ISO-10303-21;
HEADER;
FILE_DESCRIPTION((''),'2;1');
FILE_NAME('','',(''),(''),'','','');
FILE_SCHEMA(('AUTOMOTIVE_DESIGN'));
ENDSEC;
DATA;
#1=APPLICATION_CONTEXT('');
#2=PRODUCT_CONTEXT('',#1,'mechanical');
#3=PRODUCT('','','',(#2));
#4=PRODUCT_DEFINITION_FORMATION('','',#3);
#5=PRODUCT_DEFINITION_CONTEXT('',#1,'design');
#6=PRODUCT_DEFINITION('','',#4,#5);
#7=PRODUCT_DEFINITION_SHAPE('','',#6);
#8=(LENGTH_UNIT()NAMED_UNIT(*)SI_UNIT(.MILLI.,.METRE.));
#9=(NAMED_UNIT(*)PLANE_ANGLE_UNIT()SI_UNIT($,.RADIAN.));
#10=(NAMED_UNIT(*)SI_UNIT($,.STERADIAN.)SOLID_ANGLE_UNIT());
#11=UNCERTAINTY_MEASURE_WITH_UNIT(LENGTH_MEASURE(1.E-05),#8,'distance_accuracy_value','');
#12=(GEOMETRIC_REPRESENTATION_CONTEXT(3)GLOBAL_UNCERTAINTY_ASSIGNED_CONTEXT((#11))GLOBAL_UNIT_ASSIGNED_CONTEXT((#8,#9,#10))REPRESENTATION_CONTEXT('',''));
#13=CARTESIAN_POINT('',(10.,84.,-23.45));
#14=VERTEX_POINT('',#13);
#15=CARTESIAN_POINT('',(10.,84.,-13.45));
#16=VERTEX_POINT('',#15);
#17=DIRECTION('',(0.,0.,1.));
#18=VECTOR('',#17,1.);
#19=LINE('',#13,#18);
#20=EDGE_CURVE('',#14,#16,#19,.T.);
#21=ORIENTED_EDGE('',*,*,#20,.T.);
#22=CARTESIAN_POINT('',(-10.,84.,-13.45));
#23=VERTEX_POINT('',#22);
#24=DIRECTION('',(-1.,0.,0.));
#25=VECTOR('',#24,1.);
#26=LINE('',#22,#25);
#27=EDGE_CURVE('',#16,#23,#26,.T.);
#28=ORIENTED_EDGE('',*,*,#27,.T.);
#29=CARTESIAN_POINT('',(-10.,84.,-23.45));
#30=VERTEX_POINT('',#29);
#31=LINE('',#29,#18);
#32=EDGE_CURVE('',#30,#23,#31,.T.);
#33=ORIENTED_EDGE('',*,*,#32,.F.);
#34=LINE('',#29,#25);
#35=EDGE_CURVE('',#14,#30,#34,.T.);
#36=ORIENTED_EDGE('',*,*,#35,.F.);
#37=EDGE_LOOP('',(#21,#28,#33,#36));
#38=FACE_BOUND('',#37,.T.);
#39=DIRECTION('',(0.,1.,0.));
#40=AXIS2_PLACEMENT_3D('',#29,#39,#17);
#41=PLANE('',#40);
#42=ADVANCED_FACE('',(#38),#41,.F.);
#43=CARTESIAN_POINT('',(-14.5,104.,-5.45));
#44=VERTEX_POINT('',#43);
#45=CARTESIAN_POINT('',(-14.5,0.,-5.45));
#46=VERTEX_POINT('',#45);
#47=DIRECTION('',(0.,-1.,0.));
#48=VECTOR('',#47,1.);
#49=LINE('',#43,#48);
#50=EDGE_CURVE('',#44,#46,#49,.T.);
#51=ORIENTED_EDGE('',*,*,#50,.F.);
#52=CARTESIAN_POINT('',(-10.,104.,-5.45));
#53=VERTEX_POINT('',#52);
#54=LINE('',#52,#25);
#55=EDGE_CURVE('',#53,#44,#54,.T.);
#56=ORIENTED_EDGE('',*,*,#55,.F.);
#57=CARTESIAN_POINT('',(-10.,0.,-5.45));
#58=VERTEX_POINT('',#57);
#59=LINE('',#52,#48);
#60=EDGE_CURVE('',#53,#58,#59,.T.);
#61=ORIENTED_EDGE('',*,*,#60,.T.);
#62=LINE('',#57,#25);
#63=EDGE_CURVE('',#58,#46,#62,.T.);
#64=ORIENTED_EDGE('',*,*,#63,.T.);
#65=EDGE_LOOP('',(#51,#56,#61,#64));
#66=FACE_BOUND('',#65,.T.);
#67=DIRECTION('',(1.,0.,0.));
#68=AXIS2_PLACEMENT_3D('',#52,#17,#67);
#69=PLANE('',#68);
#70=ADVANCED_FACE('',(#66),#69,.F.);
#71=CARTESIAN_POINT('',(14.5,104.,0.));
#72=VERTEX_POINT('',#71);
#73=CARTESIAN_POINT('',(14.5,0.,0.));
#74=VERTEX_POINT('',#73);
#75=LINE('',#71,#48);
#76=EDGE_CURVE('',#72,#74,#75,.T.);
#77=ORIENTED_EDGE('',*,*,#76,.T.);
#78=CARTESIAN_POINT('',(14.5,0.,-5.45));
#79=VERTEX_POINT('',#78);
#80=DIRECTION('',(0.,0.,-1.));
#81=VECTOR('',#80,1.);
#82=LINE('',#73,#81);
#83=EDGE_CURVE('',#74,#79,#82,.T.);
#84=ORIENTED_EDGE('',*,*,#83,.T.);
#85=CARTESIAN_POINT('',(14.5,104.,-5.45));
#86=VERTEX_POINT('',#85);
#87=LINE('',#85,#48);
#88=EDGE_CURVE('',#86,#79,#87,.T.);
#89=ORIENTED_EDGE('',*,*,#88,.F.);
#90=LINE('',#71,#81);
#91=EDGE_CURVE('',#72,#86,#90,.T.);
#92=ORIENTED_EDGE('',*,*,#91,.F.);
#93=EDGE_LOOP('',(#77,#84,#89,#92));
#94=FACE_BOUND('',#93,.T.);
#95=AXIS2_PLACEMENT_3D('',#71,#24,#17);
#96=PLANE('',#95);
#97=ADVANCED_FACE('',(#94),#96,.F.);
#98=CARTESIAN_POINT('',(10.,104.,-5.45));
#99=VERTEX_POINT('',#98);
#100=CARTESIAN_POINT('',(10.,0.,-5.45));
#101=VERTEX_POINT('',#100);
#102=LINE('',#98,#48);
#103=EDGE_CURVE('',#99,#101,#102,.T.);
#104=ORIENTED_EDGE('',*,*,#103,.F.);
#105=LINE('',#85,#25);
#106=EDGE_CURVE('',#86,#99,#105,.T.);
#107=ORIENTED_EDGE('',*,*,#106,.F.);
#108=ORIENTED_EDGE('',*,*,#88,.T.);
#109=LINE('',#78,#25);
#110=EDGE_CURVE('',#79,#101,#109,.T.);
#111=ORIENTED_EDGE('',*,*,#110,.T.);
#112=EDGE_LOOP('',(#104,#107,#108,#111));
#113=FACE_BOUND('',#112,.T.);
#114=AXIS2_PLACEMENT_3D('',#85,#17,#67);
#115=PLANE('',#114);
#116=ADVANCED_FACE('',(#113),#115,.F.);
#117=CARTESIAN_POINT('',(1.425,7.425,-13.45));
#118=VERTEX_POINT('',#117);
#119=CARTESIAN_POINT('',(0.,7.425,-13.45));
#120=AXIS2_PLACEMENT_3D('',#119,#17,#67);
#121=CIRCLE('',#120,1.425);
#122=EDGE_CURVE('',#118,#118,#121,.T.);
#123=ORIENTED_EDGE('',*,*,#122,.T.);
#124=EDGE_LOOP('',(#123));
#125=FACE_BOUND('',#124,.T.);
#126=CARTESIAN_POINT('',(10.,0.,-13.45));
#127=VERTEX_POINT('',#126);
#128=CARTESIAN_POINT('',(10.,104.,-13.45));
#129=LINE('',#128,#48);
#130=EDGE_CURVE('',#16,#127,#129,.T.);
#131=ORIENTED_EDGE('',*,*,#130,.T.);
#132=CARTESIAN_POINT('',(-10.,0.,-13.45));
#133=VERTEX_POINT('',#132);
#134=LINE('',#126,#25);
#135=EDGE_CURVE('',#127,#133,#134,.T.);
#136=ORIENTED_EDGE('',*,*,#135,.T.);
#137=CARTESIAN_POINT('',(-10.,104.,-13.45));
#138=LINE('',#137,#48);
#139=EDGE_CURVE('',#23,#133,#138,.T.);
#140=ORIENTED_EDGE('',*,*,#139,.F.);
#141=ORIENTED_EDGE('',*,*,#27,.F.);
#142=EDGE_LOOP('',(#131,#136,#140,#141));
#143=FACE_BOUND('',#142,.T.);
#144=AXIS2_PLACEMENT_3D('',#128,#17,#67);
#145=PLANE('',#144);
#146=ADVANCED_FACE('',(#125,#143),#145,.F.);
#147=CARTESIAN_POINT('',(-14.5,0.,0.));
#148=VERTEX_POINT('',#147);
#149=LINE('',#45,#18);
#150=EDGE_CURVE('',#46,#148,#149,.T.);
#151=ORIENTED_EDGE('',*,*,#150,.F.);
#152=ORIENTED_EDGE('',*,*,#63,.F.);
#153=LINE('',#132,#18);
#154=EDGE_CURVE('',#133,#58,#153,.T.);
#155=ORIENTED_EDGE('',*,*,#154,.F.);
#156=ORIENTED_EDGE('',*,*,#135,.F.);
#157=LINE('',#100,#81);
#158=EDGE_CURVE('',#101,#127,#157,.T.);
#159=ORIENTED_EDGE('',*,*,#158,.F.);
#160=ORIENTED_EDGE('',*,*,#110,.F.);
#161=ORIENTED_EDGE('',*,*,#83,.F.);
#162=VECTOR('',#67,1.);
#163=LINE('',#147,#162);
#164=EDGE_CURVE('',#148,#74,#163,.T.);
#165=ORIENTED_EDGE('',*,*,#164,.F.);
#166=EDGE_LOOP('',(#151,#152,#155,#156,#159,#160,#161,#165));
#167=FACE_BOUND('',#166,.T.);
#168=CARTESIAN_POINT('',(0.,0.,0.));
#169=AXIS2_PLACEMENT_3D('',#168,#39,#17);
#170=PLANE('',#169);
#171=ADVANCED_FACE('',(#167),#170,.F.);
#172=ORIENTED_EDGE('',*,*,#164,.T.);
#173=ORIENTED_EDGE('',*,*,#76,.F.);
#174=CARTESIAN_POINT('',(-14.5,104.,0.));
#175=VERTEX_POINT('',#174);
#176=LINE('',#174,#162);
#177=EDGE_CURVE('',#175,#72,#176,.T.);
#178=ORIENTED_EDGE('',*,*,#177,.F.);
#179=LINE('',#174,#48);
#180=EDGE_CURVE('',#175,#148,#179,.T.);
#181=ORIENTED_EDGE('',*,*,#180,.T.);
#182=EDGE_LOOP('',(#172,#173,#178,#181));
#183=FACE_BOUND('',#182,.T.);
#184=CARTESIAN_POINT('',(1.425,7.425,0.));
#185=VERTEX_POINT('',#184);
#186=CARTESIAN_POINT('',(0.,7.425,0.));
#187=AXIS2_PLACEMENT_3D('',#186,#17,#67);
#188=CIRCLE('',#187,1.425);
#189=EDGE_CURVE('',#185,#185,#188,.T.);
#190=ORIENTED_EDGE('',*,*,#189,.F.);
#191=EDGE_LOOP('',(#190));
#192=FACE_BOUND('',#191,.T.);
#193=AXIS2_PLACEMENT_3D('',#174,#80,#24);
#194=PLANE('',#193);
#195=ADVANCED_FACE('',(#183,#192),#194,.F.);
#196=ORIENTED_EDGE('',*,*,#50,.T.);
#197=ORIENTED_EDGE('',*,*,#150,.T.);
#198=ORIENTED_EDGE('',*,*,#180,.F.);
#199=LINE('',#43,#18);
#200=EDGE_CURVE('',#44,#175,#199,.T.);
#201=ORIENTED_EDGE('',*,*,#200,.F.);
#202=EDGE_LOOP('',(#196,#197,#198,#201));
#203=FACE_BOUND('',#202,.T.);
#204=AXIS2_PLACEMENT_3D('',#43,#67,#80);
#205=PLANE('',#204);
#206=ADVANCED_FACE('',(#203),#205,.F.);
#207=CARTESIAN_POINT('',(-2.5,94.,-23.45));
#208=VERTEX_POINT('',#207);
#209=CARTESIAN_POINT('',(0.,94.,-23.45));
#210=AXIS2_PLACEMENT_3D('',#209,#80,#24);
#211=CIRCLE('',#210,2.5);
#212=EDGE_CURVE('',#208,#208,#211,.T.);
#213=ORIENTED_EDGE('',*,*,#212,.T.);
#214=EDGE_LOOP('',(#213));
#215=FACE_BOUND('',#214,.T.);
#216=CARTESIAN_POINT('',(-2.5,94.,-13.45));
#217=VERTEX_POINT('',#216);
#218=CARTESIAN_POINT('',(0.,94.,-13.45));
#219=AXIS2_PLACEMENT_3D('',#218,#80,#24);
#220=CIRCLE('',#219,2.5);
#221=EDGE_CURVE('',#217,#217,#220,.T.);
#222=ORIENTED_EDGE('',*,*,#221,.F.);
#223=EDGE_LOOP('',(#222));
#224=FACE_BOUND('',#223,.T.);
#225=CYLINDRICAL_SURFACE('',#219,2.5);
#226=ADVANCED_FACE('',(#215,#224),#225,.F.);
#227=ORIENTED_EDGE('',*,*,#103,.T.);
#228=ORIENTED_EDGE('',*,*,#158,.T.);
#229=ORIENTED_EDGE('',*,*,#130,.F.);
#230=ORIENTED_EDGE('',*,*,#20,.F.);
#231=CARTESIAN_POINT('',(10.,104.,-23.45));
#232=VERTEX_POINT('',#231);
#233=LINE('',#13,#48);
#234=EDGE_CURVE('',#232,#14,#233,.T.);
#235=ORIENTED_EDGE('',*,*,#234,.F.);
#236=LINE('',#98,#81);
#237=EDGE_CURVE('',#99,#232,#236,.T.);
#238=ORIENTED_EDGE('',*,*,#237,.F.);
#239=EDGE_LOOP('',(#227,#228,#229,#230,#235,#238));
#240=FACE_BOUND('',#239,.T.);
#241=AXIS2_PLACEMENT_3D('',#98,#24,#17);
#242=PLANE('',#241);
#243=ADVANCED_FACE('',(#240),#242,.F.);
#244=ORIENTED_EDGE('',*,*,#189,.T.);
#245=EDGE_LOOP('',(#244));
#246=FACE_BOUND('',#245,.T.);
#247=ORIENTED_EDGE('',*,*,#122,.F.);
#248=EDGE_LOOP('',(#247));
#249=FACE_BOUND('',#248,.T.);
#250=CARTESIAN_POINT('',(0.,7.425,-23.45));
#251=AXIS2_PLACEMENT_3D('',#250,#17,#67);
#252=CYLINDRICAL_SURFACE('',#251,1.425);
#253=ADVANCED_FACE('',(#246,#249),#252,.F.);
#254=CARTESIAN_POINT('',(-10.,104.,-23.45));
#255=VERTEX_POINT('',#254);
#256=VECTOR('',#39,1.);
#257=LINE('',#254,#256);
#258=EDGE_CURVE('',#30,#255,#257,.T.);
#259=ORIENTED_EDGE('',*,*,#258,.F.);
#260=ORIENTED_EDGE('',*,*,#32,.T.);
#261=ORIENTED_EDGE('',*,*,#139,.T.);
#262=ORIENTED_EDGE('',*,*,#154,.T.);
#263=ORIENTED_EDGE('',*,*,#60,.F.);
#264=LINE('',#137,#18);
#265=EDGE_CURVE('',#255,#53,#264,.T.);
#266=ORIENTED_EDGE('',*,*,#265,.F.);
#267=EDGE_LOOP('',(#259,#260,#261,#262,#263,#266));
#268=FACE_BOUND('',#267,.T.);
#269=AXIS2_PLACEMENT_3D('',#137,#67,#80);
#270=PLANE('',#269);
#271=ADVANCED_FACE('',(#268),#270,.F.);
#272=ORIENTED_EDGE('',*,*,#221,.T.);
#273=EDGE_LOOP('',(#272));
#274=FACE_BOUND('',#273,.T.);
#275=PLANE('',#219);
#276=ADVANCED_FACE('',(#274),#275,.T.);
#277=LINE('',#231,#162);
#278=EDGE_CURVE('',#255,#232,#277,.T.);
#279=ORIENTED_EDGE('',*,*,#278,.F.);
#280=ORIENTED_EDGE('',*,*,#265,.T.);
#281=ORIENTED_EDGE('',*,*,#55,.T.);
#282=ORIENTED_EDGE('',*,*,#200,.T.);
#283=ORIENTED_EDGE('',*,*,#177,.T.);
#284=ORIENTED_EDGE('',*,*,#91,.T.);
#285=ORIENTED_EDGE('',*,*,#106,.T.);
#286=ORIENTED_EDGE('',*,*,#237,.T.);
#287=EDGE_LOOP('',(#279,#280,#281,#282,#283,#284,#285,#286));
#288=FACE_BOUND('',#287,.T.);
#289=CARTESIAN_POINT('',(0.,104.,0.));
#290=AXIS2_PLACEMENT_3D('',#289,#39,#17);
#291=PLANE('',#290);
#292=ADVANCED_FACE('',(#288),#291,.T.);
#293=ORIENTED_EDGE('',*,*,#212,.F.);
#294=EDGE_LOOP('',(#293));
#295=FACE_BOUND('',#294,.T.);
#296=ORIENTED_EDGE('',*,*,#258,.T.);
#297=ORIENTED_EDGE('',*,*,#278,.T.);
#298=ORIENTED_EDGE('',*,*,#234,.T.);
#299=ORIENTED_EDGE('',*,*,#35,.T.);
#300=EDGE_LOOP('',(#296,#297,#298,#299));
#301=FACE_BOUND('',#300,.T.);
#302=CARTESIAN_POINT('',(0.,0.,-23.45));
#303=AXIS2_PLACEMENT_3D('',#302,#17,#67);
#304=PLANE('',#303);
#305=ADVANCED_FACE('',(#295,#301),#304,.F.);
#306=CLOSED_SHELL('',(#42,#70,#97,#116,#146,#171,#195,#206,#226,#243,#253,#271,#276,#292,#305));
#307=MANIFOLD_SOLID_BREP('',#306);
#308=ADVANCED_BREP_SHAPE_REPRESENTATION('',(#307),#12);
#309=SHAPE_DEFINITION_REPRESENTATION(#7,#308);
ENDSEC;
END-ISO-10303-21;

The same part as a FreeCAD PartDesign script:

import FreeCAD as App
import Part
import Sketcher

V = App.Vector
Q = App.Units.Quantity

doc = App.newDocument("Part")
body = doc.addObject("PartDesign::Body", "Body")

sketch1 = doc.addObject("Sketcher::SketchObject", "Sketch")
body.addObject(sketch1)
sketch1.AttachmentSupport = (doc.XZ_Plane, [""])
sketch1.MapMode = "FlatFace"
sketch1.addGeometry(Part.LineSegment(V(-14.5, 0, 0), V(14.5, 0, 0)), False)
sketch1.addGeometry(Part.LineSegment(V(14.5, 0, 0), V(14.5, -5.45, 0)), False)
sketch1.addGeometry(Part.LineSegment(V(14.5, -5.45, 0), V(10, -5.45, 0)), False)
sketch1.addGeometry(Part.LineSegment(V(10, -5.45, 0), V(10, -13.45, 0)), False)
sketch1.addGeometry(Part.LineSegment(V(10, -13.45, 0), V(-10, -13.45, 0)), False)
sketch1.addGeometry(Part.LineSegment(V(-10, -13.45, 0), V(-10, -5.45, 0)), False)
sketch1.addGeometry(Part.LineSegment(V(-10, -5.45, 0), V(-14.5, -5.45, 0)), False)
sketch1.addGeometry(Part.LineSegment(V(-14.5, -5.45, 0), V(-14.5, 0, 0)), False)
sketch1.addConstraint(Sketcher.Constraint("Coincident", 0, 2, 1, 1))
sketch1.addConstraint(Sketcher.Constraint("Coincident", 1, 2, 2, 1))
sketch1.addConstraint(Sketcher.Constraint("Coincident", 2, 2, 3, 1))
sketch1.addConstraint(Sketcher.Constraint("Coincident", 3, 2, 4, 1))
sketch1.addConstraint(Sketcher.Constraint("Coincident", 4, 2, 5, 1))
sketch1.addConstraint(Sketcher.Constraint("Coincident", 5, 2, 6, 1))
sketch1.addConstraint(Sketcher.Constraint("Coincident", 6, 2, 7, 1))
sketch1.addConstraint(Sketcher.Constraint("Coincident", 7, 2, 0, 1))
sketch1.addConstraint(Sketcher.Constraint("Horizontal", 0))
sketch1.addConstraint(Sketcher.Constraint("Vertical", 1))
sketch1.addConstraint(Sketcher.Constraint("Horizontal", 2))
sketch1.addConstraint(Sketcher.Constraint("Vertical", 3))
sketch1.addConstraint(Sketcher.Constraint("Horizontal", 4))
sketch1.addConstraint(Sketcher.Constraint("Vertical", 5))
sketch1.addConstraint(Sketcher.Constraint("Horizontal", 6))
sketch1.addConstraint(Sketcher.Constraint("Vertical", 7))
sketch1.addConstraint(Sketcher.Constraint("Symmetric", 0, 2, 7, 2, -1, 1))
sketch1.addConstraint(Sketcher.Constraint("Symmetric", 2, 2, 5, 2, -2))
sketch1.addConstraint(Sketcher.Constraint("DistanceX", 0, 1, 0, 2, Q("29 mm")))
sketch1.addConstraint(Sketcher.Constraint("DistanceX", 4, 2, 4, 1, Q("20 mm")))
sketch1.addConstraint(Sketcher.Constraint("DistanceY", 3, 2, 3, 1, Q("8 mm")))
sketch1.addConstraint(Sketcher.Constraint("DistanceY", 1, 2, 1, 1, Q("5.45 mm")))
pad1 = doc.addObject("PartDesign::Pad", "Pad")
body.addObject(pad1)
pad1.Profile = sketch1
pad1.Length = 104
pad1.Reversed = True

sketch2 = doc.addObject("Sketcher::SketchObject", "Sketch001")
body.addObject(sketch2)
sketch2.AttachmentSupport = (doc.XY_Plane, [""])
sketch2.MapMode = "FlatFace"
sketch2.AttachmentOffset = App.Placement(V(0, 0, -13.45), App.Rotation())
sketch2.addGeometry(Part.LineSegment(V(10, 104, 0), V(10, 84, 0)), False)
sketch2.addGeometry(Part.LineSegment(V(10, 84, 0), V(-10, 84, 0)), False)
sketch2.addGeometry(Part.LineSegment(V(-10, 84, 0), V(-10, 104, 0)), False)
sketch2.addGeometry(Part.LineSegment(V(-10, 104, 0), V(10, 104, 0)), False)
sketch2.addConstraint(Sketcher.Constraint("Coincident", 0, 2, 1, 1))
sketch2.addConstraint(Sketcher.Constraint("Coincident", 1, 2, 2, 1))
sketch2.addConstraint(Sketcher.Constraint("Coincident", 2, 2, 3, 1))
sketch2.addConstraint(Sketcher.Constraint("Coincident", 3, 2, 0, 1))
sketch2.addConstraint(Sketcher.Constraint("Vertical", 0))
sketch2.addConstraint(Sketcher.Constraint("Horizontal", 1))
sketch2.addConstraint(Sketcher.Constraint("Vertical", 2))
sketch2.addConstraint(Sketcher.Constraint("Horizontal", 3))
sketch2.addConstraint(Sketcher.Constraint("Equal", 3, 0))
sketch2.addConstraint(Sketcher.Constraint("DistanceX", 1, 2, 1, 1, Q("20 mm")))
sketch2.addConstraint(Sketcher.Constraint("DistanceX", -1, 1, 0, 2, Q("10 mm")))
sketch2.addConstraint(Sketcher.Constraint("DistanceY", -1, 1, 0, 2, Q("84 mm")))
pad2 = doc.addObject("PartDesign::Pad", "Pad001")
body.addObject(pad2)
pad2.Profile = sketch2
pad2.Length = 10
pad2.Reversed = True

sketch3 = doc.addObject("Sketcher::SketchObject", "Sketch002")
body.addObject(sketch3)
sketch3.AttachmentSupport = (doc.XY_Plane, [""])
sketch3.MapMode = "FlatFace"
sketch3.AttachmentOffset = App.Placement(V(0, 0, -23.45), App.Rotation())
sketch3.addGeometry(Part.Circle(V(0, 94, 0), V(0, 0, 1), 2.5), False)
sketch3.addConstraint(Sketcher.Constraint("PointOnObject", 0, 3, -2))
sketch3.addConstraint(Sketcher.Constraint("Diameter", 0, Q("5 mm")))
sketch3.addConstraint(Sketcher.Constraint("DistanceY", -1, 1, 0, 3, Q("94 mm")))
pocket1 = doc.addObject("PartDesign::Pocket", "Pocket")
body.addObject(pocket1)
pocket1.Profile = sketch3
pocket1.Length = 10
pocket1.Reversed = True

sketch4 = doc.addObject("Sketcher::SketchObject", "Sketch003")
body.addObject(sketch4)
sketch4.AttachmentSupport = (doc.XY_Plane, [""])
sketch4.MapMode = "FlatFace"
sketch4.addGeometry(Part.Circle(V(0, 7.425, 0), V(0, 0, 1), 1.425), False)
sketch4.addConstraint(Sketcher.Constraint("PointOnObject", 0, 3, -2))
sketch4.addConstraint(Sketcher.Constraint("Diameter", 0, Q("2.85 mm")))
sketch4.addConstraint(Sketcher.Constraint("DistanceY", -1, 1, 0, 3, Q("7.425 mm")))
pocket2 = doc.addObject("PartDesign::Pocket", "Pocket001")
body.addObject(pocket2)
pocket2.Profile = sketch4
pocket2.Type = "ThroughAll"

doc.recompute()
